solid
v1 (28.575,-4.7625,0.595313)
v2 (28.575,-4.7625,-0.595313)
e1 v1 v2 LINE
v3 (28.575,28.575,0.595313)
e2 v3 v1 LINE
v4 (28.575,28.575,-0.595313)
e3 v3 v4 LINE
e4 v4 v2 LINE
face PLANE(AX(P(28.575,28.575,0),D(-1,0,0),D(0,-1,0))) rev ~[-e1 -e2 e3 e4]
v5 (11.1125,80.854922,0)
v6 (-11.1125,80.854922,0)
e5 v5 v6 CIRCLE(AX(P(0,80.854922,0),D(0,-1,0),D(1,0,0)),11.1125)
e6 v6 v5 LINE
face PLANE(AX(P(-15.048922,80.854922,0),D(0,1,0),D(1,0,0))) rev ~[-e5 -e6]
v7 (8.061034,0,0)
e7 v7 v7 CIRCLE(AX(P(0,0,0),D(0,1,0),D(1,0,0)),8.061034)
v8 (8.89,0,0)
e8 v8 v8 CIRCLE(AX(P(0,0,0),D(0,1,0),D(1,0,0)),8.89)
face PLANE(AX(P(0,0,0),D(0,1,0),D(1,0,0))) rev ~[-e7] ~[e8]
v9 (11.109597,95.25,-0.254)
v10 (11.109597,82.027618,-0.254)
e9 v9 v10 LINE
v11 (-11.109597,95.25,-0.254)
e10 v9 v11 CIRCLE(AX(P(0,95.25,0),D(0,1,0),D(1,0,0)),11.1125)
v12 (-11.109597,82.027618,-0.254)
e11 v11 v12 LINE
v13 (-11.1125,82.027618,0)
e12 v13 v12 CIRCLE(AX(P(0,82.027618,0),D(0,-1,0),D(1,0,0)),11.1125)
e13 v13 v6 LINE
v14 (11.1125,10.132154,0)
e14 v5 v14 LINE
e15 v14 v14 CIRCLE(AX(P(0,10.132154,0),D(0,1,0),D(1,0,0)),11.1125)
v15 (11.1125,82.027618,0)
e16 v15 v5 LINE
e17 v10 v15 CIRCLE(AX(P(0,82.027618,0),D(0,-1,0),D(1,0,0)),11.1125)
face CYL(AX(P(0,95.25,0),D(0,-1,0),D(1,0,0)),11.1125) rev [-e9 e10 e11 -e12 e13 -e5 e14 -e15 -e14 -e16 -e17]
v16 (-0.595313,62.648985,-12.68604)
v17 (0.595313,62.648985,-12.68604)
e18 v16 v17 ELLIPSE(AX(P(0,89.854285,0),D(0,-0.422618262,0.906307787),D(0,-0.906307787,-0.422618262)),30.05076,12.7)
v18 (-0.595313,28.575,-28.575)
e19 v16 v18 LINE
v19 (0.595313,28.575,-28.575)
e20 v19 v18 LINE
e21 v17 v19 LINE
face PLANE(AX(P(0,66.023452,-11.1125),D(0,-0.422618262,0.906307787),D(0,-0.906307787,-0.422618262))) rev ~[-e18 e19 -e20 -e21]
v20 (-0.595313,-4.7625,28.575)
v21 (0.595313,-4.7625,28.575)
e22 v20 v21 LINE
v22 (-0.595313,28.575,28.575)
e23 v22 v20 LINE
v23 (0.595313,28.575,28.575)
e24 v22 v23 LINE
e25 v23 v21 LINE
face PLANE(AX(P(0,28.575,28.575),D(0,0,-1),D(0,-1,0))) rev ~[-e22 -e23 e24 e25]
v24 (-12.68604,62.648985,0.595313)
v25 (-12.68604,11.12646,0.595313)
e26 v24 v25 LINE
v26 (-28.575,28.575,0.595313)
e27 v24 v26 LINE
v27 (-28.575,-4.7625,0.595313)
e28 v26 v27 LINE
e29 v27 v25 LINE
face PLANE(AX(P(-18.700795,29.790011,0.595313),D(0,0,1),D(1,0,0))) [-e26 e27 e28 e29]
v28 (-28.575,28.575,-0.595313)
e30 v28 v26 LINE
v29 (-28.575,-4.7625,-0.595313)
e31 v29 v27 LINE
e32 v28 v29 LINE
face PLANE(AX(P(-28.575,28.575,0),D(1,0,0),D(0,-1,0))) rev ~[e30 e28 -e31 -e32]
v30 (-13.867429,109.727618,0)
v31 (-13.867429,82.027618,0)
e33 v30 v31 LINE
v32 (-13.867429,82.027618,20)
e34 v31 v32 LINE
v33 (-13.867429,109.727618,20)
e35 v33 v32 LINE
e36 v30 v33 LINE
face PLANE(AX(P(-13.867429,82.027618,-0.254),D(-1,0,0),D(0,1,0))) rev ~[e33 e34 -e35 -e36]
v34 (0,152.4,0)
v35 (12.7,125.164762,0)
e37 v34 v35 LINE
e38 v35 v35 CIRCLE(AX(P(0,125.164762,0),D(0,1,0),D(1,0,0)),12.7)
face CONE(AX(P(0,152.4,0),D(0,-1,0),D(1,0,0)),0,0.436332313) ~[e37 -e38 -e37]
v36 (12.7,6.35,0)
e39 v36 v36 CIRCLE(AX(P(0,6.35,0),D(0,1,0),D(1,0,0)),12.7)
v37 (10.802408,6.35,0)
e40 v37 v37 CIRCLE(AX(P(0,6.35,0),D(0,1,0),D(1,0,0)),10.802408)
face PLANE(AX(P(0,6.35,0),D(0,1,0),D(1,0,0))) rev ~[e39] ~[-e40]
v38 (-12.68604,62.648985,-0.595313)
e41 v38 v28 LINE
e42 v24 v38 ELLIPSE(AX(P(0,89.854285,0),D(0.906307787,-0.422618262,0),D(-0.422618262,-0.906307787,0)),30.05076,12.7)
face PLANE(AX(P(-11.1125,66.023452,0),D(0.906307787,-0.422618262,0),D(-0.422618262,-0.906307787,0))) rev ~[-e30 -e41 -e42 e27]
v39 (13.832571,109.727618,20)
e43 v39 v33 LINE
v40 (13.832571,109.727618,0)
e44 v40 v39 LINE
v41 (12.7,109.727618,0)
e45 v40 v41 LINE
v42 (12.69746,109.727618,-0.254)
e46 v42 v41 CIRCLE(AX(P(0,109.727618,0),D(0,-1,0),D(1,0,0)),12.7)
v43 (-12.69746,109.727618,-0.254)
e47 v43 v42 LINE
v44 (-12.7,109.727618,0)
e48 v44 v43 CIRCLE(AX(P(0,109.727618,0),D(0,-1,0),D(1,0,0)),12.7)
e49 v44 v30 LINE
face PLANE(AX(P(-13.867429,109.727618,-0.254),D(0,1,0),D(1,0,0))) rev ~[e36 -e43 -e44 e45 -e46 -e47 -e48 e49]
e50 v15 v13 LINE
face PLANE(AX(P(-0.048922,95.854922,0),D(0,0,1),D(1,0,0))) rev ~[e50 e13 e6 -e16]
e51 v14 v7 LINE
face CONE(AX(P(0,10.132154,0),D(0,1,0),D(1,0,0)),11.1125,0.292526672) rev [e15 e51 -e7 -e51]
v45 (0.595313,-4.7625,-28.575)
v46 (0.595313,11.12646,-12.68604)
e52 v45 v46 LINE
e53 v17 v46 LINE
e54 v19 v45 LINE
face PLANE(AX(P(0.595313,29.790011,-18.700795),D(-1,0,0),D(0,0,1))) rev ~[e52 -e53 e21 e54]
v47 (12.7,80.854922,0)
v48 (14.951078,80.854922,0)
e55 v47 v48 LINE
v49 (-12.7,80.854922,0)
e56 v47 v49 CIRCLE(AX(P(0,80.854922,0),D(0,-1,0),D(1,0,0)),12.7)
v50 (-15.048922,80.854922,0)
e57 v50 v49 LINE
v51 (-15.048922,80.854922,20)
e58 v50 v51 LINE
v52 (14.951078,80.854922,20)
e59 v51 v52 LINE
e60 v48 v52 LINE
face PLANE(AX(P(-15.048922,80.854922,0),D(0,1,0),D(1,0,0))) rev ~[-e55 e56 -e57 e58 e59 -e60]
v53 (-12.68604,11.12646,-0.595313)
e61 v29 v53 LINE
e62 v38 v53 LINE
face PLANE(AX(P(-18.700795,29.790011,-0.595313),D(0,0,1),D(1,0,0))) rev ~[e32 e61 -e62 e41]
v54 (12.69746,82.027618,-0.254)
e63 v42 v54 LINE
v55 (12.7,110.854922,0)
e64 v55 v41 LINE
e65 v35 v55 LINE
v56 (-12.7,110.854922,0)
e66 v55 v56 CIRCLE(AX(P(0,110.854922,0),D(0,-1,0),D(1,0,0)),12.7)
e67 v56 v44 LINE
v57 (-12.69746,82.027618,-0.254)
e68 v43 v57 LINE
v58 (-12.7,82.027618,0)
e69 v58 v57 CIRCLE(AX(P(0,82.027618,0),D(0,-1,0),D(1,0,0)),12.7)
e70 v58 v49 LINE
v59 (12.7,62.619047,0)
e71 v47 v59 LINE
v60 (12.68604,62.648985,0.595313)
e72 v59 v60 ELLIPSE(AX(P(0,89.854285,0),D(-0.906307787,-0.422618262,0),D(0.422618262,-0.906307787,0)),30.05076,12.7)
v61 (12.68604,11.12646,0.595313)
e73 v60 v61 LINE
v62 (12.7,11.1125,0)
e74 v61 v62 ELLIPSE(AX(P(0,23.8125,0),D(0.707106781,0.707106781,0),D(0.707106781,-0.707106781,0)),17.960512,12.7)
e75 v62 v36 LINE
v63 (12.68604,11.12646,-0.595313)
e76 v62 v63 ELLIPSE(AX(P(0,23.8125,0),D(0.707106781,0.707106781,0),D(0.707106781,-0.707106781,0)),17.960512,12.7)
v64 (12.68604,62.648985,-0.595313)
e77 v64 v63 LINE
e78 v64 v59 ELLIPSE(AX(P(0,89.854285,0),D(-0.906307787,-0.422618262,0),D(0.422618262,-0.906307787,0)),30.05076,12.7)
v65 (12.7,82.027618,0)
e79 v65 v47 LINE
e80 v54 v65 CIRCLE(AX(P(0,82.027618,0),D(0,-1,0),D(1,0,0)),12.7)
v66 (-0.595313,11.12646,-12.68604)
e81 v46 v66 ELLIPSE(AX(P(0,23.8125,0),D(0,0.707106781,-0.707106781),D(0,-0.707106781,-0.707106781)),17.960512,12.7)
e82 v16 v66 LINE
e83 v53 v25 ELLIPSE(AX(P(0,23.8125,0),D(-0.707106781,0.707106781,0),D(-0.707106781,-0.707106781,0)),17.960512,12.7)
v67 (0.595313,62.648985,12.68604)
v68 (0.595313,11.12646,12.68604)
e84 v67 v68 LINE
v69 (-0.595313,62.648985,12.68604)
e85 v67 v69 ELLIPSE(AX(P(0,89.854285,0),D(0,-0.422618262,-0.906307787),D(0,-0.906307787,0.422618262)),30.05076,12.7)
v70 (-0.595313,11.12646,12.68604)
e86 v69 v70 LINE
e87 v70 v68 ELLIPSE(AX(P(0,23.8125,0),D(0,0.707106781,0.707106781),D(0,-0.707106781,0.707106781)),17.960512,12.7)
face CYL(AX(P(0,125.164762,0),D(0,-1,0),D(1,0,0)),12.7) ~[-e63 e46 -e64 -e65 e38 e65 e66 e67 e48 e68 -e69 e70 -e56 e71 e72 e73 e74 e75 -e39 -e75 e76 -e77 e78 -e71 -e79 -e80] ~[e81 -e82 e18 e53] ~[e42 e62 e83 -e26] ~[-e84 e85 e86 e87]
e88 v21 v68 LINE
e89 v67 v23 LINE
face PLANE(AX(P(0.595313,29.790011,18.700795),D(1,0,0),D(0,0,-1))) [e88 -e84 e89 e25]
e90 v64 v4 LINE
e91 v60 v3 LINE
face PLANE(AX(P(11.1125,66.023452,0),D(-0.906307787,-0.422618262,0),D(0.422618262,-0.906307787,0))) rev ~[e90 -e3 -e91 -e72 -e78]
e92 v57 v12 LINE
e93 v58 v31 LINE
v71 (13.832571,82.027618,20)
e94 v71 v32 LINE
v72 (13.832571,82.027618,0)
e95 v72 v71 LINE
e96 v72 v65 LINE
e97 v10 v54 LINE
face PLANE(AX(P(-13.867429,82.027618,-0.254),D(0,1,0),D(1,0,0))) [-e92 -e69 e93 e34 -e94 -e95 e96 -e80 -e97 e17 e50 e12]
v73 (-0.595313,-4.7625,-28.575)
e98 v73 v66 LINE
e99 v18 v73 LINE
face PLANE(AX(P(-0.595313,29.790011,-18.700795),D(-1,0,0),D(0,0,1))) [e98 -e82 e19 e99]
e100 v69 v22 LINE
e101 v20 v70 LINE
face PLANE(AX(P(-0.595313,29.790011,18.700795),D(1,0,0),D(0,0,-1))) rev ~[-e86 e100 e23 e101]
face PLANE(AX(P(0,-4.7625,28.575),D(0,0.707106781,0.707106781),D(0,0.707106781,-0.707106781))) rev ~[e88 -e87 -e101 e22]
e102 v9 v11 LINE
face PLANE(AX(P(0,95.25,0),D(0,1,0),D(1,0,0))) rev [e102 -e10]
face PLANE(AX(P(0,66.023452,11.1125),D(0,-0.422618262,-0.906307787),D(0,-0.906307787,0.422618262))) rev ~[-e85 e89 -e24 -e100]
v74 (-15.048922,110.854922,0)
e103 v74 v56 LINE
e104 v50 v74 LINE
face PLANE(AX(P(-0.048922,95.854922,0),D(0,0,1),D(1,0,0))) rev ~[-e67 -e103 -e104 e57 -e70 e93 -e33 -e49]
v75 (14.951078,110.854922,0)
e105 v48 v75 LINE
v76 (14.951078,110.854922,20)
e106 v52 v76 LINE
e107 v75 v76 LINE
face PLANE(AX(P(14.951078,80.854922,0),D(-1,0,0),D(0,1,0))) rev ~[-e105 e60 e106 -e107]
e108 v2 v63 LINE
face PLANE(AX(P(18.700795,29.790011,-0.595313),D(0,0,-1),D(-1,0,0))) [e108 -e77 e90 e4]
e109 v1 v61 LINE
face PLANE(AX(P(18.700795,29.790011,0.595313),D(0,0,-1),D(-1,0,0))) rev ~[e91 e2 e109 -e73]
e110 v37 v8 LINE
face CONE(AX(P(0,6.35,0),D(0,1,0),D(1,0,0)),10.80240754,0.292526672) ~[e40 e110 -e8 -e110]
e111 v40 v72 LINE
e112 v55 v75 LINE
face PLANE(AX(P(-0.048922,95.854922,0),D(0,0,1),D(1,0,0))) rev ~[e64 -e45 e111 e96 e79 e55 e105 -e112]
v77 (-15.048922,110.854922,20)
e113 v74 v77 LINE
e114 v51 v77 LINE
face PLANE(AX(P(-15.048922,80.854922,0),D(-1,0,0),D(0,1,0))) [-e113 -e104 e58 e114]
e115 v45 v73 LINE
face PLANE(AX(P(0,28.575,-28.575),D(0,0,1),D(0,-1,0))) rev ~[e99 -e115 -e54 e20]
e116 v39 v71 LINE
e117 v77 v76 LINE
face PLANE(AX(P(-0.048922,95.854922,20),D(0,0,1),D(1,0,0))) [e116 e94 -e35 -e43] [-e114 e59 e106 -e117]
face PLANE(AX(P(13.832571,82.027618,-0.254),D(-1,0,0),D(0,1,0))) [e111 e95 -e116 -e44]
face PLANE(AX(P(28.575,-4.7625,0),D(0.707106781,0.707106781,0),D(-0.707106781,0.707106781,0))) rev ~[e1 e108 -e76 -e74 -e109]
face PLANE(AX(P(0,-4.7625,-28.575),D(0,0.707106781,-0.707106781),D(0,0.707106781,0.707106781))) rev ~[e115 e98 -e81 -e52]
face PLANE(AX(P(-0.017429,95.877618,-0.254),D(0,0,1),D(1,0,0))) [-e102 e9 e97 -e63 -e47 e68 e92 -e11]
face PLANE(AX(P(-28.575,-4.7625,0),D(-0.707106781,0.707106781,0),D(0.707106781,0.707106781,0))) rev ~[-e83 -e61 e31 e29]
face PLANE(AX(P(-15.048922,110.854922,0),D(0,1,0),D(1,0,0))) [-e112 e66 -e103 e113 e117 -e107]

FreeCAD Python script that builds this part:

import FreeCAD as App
import Part
import Sketcher

V = App.Vector
Q = App.Units.Quantity

doc = App.newDocument("Part")
body = doc.addObject("PartDesign::Body", "Body")

# Sketch on XY plane
sketch1 = body.newObject("Sketcher::SketchObject", "Sketch")
sketch1.AttachmentSupport = (doc.getObject("XY_Plane"), [""])
sketch1.MapMode = "FlatFace"
sketch1.addGeometry(Part.LineSegment(V(0, 152.4, 0), V(0, 0, 0)), False)
sketch1.addGeometry(Part.LineSegment(V(0, 0, 0), V(8.9, 0, 0)), False)
sketch1.addGeometry(Part.LineSegment(V(8.9, 0, 0), V(10.8, 6.3, 0)), False)
sketch1.addGeometry(Part.LineSegment(V(10.8, 6.3, 0), V(12.7, 6.3, 0)), False)
sketch1.addGeometry(Part.LineSegment(V(12.7, 6.3, 0), V(12.7, 125.2, 0)), False)
sketch1.addGeometry(Part.LineSegment(V(12.7, 125.2, 0), V(0, 152.4, 0)), False)
sketch1.addConstraint(Sketcher.Constraint("Coincident", 0, 2, 1, 1))
sketch1.addConstraint(Sketcher.Constraint("Coincident", 1, 2, 2, 1))
sketch1.addConstraint(Sketcher.Constraint("Coincident", 2, 2, 3, 1))
sketch1.addConstraint(Sketcher.Constraint("Coincident", 3, 2, 4, 1))
sketch1.addConstraint(Sketcher.Constraint("Coincident", 4, 2, 5, 1))
sketch1.addConstraint(Sketcher.Constraint("Coincident", 5, 2, 0, 1))
sketch1.addConstraint(Sketcher.Constraint("Vertical", 0))
sketch1.addConstraint(Sketcher.Constraint("Horizontal", 1))
sketch1.addConstraint(Sketcher.Constraint("Horizontal", 3))
sketch1.addConstraint(Sketcher.Constraint("Vertical", 4))
sketch1.addConstraint(Sketcher.Constraint("Coincident", 0, 2, -1, 1))
sketch1.addConstraint(Sketcher.Constraint("DistanceY", 0, 2, 0, 1, Q("6 in")))
sketch1.addConstraint(Sketcher.Constraint("Angle", 5, Q("115 deg")))
sketch1.addConstraint(Sketcher.Constraint("DistanceX", 1, 1, 1, 2, Q("0.35 in")))
sketch1.addConstraint(Sketcher.Constraint("DistanceX", -1, 1, 3, 2, Q("0.5 in")))
sketch1.addConstraint(Sketcher.Constraint("DistanceY", -1, 1, 2, 2, Q("0.25 in")))
sketch1.addConstraint(Sketcher.Constraint("DistanceX", 3, 1, 3, 2, 1.897592))
revolution = body.newObject("PartDesign::Revolution", "Revolution")
revolution.Profile = sketch1
revolution.ReferenceAxis = (sketch1, ["V_Axis"])
revolution.Angle = 360

# Sketch on XY plane
sketch2 = body.newObject("Sketcher::SketchObject", "Sketch001")
sketch2.AttachmentSupport = (doc.getObject("XY_Plane"), [""])
sketch2.MapMode = "FlatFace"
sketch2.addGeometry(Part.LineSegment(V(29, 29, 0), V(11, 66, 0)), False)
sketch2.addGeometry(Part.LineSegment(V(11, 66, 0), V(11, 13, 0)), False)
sketch2.addGeometry(Part.LineSegment(V(11, 13, 0), V(29, -5, 0)), False)
sketch2.addGeometry(Part.LineSegment(V(29, -5, 0), V(29, 29, 0)), False)
sketch2.addConstraint(Sketcher.Constraint("Coincident", 0, 2, 1, 1))
sketch2.addConstraint(Sketcher.Constraint("Coincident", 1, 2, 2, 1))
sketch2.addConstraint(Sketcher.Constraint("Coincident", 2, 2, 3, 1))
sketch2.addConstraint(Sketcher.Constraint("Coincident", 3, 2, 0, 1))
sketch2.addConstraint(Sketcher.Constraint("Vertical", 1))
sketch2.addConstraint(Sketcher.Constraint("Vertical", 3))
sketch2.addConstraint(Sketcher.Constraint("Angle", 0, Q("115 deg")))
sketch2.addConstraint(Sketcher.Constraint("Angle", 2, Q("-45 deg")))
sketch2.addConstraint(Sketcher.Constraint("DistanceY", -1, 1, 1, 2, Q("0.5 in")))
sketch2.addConstraint(Sketcher.Constraint("DistanceY", 3, 1, 3, 2, Q("1.3125 in")))
sketch2.addConstraint(Sketcher.Constraint("DistanceX", -1, 1, 0, 2, Q("0.4375 in")))
sketch2.addConstraint(Sketcher.Constraint("DistanceX", -1, 1, 2, 2, Q("1.125 in")))
pad1 = body.newObject("PartDesign::Pad", "Pad")
pad1.Profile = sketch2
pad1.Length = Q("0.046875 in")
pad1.Midplane = True
doc.recompute()

polarpattern = body.newObject("PartDesign::PolarPattern", "PolarPattern")
polarpattern.Originals = [pad1]
polarpattern.Axis = (doc.getObject("Y_Axis"), [""])
polarpattern.Angle = 360
polarpattern.Occurrences = 4
body.Tip = polarpattern

# Sketch on XY plane
sketch3 = body.newObject("Sketcher::SketchObject", "Sketch002")
sketch3.AttachmentSupport = (doc.getObject("XY_Plane"), [""])
sketch3.MapMode = "FlatFace"
sketch3.addGeometry(Part.LineSegment(V(0, 0, 0), V(8, 0, 0)), False)
sketch3.addGeometry(Part.LineSegment(V(8, 0, 0), V(11, 10, 0)), False)
sketch3.addGeometry(Part.LineSegment(V(11, 10, 0), V(11, 95, 0)), False)
sketch3.addGeometry(Part.LineSegment(V(11, 95, 0), V(0, 95, 0)), False)
sketch3.addGeometry(Part.LineSegment(V(0, 95, 0), V(0, 0, 0)), False)
sketch3.addConstraint(Sketcher.Constraint("Coincident", 0, 2, 1, 1))
sketch3.addConstraint(Sketcher.Constraint("Coincident", 1, 2, 2, 1))
sketch3.addConstraint(Sketcher.Constraint("Coincident", 2, 2, 3, 1))
sketch3.addConstraint(Sketcher.Constraint("Coincident", 3, 2, 4, 1))
sketch3.addConstraint(Sketcher.Constraint("Coincident", 4, 2, 0, 1))
sketch3.addConstraint(Sketcher.Constraint("Horizontal", 0))
sketch3.addConstraint(Sketcher.Constraint("Vertical", 2))
sketch3.addConstraint(Sketcher.Constraint("Horizontal", 3))
sketch3.addConstraint(Sketcher.Constraint("Vertical", 4))
sketch3.addConstraint(Sketcher.Constraint("Coincident", 4, 2, -1, 1))
sketch3.addConstraint(Sketcher.Constraint("DistanceY", 4, 2, 4, 1, Q("3.75 in")))
sketch3.addConstraint(Sketcher.Constraint("DistanceX", 3, 2, 3, 1, Q("0.4375 in")))
sketch3.addConstraint(Sketcher.Constraint("DistanceX", 0, 1, 0, 2, 8.061034))
sketch3.addConstraint(Sketcher.Constraint("DistanceY", 2, 1, 2, 2, 85.117846))
groove = body.newObject("PartDesign::Groove", "Groove")
groove.Profile = sketch3
groove.ReferenceAxis = (sketch3, ["V_Axis"])
groove.Angle = 360

# Sketch on XY plane
sketch4 = body.newObject("Sketcher::SketchObject", "Sketch003")
sketch4.AttachmentSupport = (doc.getObject("XY_Plane"), [""])
sketch4.MapMode = "FlatFace"
sketch4.addGeometry(Part.LineSegment(V(-15, 111, 0), V(-15, 81, 0)), False)
sketch4.addGeometry(Part.LineSegment(V(-15, 81, 0), V(15, 81, 0)), False)
sketch4.addGeometry(Part.LineSegment(V(15, 81, 0), V(15, 111, 0)), False)
sketch4.addGeometry(Part.LineSegment(V(15, 111, 0), V(-15, 111, 0)), False)
sketch4.addConstraint(Sketcher.Constraint("Coincident", 0, 2, 1, 1))
sketch4.addConstraint(Sketcher.Constraint("Coincident", 1, 2, 2, 1))
sketch4.addConstraint(Sketcher.Constraint("Coincident", 2, 2, 3, 1))
sketch4.addConstraint(Sketcher.Constraint("Coincident", 3, 2, 0, 1))
sketch4.addConstraint(Sketcher.Constraint("Vertical", 0))
sketch4.addConstraint(Sketcher.Constraint("Horizontal", 1))
sketch4.addConstraint(Sketcher.Constraint("Vertical", 2))
sketch4.addConstraint(Sketcher.Constraint("Horizontal", 3))
sketch4.addConstraint(Sketcher.Constraint("Equal", 3, 0))
sketch4.addConstraint(Sketcher.Constraint("DistanceX", 1, 1, 1, 2, 30.0))
sketch4.addConstraint(Sketcher.Constraint("DistanceX", 0, 2, -1, 1, 15.048922))
sketch4.addConstraint(Sketcher.Constraint("DistanceY", -1, 1, 0, 2, 80.854922))
pad2 = body.newObject("PartDesign::Pad", "Pad001")
pad2.Profile = sketch4
pad2.Length = 20

# Sketch on XY plane
sketch5 = body.newObject("Sketcher::SketchObject", "Sketch004")
sketch5.AttachmentSupport = (doc.getObject("XY_Plane"), [""])
sketch5.MapMode = "FlatFace"
sketch5.addGeometry(Part.LineSegment(V(-14, 110, 0), V(-14, 82, 0)), False)
sketch5.addGeometry(Part.LineSegment(V(-14, 82, 0), V(14, 82, 0)), False)
sketch5.addGeometry(Part.LineSegment(V(14, 82, 0), V(14, 110, 0)), False)
sketch5.addGeometry(Part.LineSegment(V(14, 110, 0), V(-14, 110, 0)), False)
sketch5.addConstraint(Sketcher.Constraint("Coincident", 0, 2, 1, 1))
sketch5.addConstraint(Sketcher.Constraint("Coincident", 1, 2, 2, 1))
sketch5.addConstraint(Sketcher.Constraint("Coincident", 2, 2, 3, 1))
sketch5.addConstraint(Sketcher.Constraint("Coincident", 3, 2, 0, 1))
sketch5.addConstraint(Sketcher.Constraint("Vertical", 0))
sketch5.addConstraint(Sketcher.Constraint("Horizontal", 1))
sketch5.addConstraint(Sketcher.Constraint("Vertical", 2))
sketch5.addConstraint(Sketcher.Constraint("Horizontal", 3))
sketch5.addConstraint(Sketcher.Constraint("Equal", 3, 0))
sketch5.addConstraint(Sketcher.Constraint("DistanceX", 1, 1, 1, 2, 27.7))
sketch5.addConstraint(Sketcher.Constraint("DistanceX", 0, 2, -1, 1, 13.867429))
sketch5.addConstraint(Sketcher.Constraint("DistanceY", -1, 1, 0, 2, 82.027618))
pocket1 = body.newObject("PartDesign::Pocket", "Pocket")
pocket1.Profile = sketch5
pocket1.Type = "TwoLengths"
pocket1.Length = 25.636
pocket1.Length2 = Q("0.01 in")
pocket1.Reversed = True

doc.recompute()
